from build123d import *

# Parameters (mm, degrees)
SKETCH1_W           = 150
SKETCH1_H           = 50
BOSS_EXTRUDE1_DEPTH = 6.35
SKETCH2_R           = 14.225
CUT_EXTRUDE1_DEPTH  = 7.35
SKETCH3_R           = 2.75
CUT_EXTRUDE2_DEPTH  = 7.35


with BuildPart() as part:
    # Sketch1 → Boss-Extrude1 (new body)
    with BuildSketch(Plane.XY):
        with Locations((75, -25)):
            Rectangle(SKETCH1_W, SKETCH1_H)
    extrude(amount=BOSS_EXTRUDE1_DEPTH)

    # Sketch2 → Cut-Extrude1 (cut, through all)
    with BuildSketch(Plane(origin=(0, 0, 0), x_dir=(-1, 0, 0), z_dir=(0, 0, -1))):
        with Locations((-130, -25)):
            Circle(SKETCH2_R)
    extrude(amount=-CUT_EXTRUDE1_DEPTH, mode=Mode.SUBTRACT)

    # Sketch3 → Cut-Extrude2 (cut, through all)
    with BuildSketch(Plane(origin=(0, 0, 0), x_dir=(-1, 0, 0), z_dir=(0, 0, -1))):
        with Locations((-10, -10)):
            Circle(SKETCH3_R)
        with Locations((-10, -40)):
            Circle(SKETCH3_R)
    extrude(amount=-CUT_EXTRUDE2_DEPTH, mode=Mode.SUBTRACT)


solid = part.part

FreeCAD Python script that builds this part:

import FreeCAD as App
import Part
import Sketcher

V = App.Vector
Q = App.Units.Quantity

doc = App.newDocument("Part")
body = doc.addObject("PartDesign::Body", "Body")

# Sketch on XY plane
sketch1 = body.newObject("Sketcher::SketchObject", "Sketch")
sketch1.AttachmentSupport = (doc.getObject("XY_Plane"), [""])
sketch1.MapMode = "FlatFace"
sketch1.addGeometry([
    Part.LineSegment(V(0, 0, 0), V(0, -50, 0)),
    Part.LineSegment(V(0, -50, 0), V(150, -50, 0)),
    Part.LineSegment(V(150, -50, 0), V(150, 0, 0)),
    Part.LineSegment(V(150, 0, 0), V(0, 0, 0)),
], False)
sketch1.addConstraint([
    Sketcher.Constraint("Coincident", 0, 2, 1, 1),
    Sketcher.Constraint("Coincident", 1, 2, 2, 1),
    Sketcher.Constraint("Coincident", 2, 2, 3, 1),
    Sketcher.Constraint("Coincident", 3, 2, 0, 1),
    Sketcher.Constraint("Vertical", 0),
    Sketcher.Constraint("Horizontal", 1),
    Sketcher.Constraint("Vertical", 2),
    Sketcher.Constraint("Horizontal", 3),
    Sketcher.Constraint("Coincident", 3, 2, -1, 1),
    Sketcher.Constraint("DistanceX", 1, 1, 1, 2, Q("150 mm")),
    Sketcher.Constraint("DistanceY", 0, 2, 0, 1, Q("50 mm")),
])
pad1 = body.newObject("PartDesign::Pad", "Pad")
pad1.Profile = sketch1
pad1.Length = 6.35

# Sketch on XY plane
sketch2 = body.newObject("Sketcher::SketchObject", "Sketch001")
sketch2.AttachmentSupport = (doc.getObject("XY_Plane"), [""])
sketch2.MapMode = "FlatFace"
sketch2.addGeometry(Part.Circle(V(130, -25, 0), V(0, 0, 1), 14), False)
sketch2.addConstraint([
    Sketcher.Constraint("Diameter", 0, Q("28.45 mm")),
    Sketcher.Constraint("DistanceX", -1, 1, 0, 3, Q("130 mm")),
    Sketcher.Constraint("DistanceY", 0, 3, -1, 1, Q("25 mm")),
])
pocket1 = body.newObject("PartDesign::Pocket", "Pocket")
pocket1.Profile = sketch2
pocket1.Type = "ThroughAll"
pocket1.Reversed = True

# Sketch on XY plane
sketch3 = body.newObject("Sketcher::SketchObject", "Sketch002")
sketch3.AttachmentSupport = (doc.getObject("XY_Plane"), [""])
sketch3.MapMode = "FlatFace"
sketch3.addGeometry([
    Part.Circle(V(10, -10, 0), V(0, 0, 1), 2.8),
    Part.Circle(V(10, -40, 0), V(0, 0, 1), 2.8),
], False)
sketch3.addConstraint([
    Sketcher.Constraint("Equal", 0, 1),
    Sketcher.Constraint("Vertical", 0, 3, 1, 3),
    Sketcher.Constraint("Diameter", 0, Q("5.5 mm")),
    Sketcher.Constraint("DistanceX", -1, 1, 0, 3, Q("10 mm")),
    Sketcher.Constraint("DistanceY", 0, 3, -1, 1, Q("10 mm")),
    Sketcher.Constraint("DistanceY", 1, 3, -1, 1, Q("40 mm")),
])
pocket2 = body.newObject("PartDesign::Pocket", "Pocket001")
pocket2.Profile = sketch3
pocket2.Type = "ThroughAll"
pocket2.Reversed = True

doc.recompute()
